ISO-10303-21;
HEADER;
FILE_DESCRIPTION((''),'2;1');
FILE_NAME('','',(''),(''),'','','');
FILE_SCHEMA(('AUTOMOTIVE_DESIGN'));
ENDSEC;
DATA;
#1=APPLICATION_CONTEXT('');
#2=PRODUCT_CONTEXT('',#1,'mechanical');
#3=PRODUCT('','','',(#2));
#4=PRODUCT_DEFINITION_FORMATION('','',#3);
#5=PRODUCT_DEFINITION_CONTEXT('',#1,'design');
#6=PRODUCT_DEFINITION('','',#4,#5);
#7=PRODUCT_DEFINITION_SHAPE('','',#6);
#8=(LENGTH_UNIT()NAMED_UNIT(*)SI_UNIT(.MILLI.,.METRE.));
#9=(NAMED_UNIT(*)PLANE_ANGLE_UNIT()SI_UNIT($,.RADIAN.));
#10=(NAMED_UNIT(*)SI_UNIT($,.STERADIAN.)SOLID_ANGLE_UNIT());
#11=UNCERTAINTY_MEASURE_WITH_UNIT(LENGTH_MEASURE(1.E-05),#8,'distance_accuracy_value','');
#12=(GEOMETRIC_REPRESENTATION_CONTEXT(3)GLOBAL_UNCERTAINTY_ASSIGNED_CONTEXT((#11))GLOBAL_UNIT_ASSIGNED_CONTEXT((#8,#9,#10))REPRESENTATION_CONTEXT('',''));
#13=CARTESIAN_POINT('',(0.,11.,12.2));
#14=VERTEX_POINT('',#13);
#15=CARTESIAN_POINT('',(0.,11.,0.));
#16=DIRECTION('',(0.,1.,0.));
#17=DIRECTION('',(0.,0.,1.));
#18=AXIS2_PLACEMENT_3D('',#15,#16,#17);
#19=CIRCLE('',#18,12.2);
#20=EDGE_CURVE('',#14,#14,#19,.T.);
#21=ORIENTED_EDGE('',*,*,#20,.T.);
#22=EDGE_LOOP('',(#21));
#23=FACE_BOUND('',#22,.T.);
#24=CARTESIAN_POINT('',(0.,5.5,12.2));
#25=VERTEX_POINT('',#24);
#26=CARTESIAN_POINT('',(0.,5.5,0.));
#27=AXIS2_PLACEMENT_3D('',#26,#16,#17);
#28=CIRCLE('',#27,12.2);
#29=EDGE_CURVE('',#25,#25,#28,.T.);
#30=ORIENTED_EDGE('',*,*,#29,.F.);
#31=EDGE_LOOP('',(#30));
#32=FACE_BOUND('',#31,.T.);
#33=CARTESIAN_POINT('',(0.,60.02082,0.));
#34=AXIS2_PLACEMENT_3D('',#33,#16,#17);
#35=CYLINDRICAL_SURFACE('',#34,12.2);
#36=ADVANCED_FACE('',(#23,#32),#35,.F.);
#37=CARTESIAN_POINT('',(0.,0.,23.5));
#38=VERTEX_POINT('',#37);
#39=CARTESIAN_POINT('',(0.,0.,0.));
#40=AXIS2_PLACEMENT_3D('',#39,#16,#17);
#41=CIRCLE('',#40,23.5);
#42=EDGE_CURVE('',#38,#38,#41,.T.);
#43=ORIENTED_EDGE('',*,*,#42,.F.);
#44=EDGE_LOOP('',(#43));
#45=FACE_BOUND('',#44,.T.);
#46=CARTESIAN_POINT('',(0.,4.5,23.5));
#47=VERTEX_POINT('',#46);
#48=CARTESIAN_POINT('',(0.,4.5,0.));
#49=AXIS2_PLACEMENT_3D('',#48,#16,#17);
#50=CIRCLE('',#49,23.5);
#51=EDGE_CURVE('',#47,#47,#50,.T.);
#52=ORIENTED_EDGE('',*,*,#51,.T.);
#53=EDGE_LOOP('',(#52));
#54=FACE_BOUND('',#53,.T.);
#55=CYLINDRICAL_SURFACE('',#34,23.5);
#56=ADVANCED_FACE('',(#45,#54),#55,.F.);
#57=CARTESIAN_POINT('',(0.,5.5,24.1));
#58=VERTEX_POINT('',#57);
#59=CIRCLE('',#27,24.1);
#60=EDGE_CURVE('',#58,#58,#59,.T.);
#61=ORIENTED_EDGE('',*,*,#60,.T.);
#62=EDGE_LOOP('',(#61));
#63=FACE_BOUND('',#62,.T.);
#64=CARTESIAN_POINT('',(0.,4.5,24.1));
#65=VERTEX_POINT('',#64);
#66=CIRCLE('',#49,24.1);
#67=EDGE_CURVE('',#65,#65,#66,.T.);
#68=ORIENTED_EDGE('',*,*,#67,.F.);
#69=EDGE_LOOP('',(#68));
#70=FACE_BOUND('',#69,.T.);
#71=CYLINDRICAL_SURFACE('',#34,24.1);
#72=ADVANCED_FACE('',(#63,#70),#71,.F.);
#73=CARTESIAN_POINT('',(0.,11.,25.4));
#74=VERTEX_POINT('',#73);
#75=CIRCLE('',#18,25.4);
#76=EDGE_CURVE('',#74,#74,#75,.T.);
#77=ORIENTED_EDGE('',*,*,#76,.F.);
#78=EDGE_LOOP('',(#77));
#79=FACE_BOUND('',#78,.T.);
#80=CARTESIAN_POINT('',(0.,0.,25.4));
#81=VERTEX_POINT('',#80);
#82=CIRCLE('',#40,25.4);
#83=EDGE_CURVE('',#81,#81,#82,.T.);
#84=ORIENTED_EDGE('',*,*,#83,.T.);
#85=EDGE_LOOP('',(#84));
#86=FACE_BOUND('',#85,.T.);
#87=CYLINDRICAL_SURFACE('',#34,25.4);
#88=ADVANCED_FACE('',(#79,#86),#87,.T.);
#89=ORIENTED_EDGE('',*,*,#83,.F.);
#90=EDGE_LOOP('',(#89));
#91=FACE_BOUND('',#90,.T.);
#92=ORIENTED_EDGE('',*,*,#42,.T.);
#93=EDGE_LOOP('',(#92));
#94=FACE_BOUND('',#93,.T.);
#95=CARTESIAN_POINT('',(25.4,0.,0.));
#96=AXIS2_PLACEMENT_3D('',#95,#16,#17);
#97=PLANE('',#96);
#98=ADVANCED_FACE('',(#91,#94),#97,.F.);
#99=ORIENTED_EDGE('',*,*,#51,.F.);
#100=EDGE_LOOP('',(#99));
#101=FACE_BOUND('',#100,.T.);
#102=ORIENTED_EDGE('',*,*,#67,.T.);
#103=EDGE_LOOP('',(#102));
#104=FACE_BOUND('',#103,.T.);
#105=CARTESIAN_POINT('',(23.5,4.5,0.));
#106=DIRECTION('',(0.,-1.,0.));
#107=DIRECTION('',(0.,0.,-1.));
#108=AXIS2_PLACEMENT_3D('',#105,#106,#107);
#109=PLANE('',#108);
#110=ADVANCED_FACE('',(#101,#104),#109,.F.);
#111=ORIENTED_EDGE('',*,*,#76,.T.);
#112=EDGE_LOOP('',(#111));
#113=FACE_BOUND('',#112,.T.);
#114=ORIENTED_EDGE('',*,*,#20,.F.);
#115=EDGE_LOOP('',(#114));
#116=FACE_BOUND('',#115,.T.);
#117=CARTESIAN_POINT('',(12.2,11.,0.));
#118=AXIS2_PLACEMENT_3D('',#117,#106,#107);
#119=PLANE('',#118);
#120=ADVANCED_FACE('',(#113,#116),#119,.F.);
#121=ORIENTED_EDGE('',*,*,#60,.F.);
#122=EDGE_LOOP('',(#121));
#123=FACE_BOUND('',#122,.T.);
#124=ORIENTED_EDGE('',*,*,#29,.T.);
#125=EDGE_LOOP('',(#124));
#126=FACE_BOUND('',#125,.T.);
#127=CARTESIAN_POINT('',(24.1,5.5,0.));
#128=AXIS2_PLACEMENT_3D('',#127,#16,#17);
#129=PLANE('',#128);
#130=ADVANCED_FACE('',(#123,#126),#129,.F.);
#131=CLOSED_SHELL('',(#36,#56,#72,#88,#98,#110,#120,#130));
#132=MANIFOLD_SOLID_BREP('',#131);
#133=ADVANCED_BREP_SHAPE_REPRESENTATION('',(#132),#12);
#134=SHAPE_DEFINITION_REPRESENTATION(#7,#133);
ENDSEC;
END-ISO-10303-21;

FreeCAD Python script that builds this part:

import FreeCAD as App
import Part
import Sketcher
from FreeCAD import Vector


def add_polygon(sketch, points):
    """Adds a closed chain of lines whose ends are joined by coincident constraints."""
    first, n = sketch.GeometryCount, len(points)
    for a, b in zip(points, points[1:] + points[:1]):
        sketch.addGeometry(Part.LineSegment(App.Vector(*a, 0), App.Vector(*b, 0)), False)
    for i in range(n):
        sketch.addConstraint(Sketcher.Constraint("Coincident", first + i, 2, first + (i + 1) % n, 1))

doc = App.newDocument("Part")
body = doc.addObject("PartDesign::Body", "Body")

# Sketch on XY plane
sketch1 = body.newObject("Sketcher::SketchObject", "Sketch")
sketch1.AttachmentSupport = (doc.getObject("XY_Plane"), [""])
sketch1.MapMode = "FlatFace"
add_polygon(sketch1, [(23.5, 4.5), (23.5, 0), (25.4, 0), (25.4, 11), (12.2, 11), (12.2, 5.5), (24.1, 5.5), (24.1, 4.5)])  # lines 0-7
sketch1.addConstraint([
    Sketcher.Constraint("Vertical", 0),
    Sketcher.Constraint("Horizontal", 1),
    Sketcher.Constraint("Vertical", 2),
    Sketcher.Constraint("Horizontal", 3),
    Sketcher.Constraint("Vertical", 4),
    Sketcher.Constraint("Horizontal", 5),
    Sketcher.Constraint("Vertical", 6),
    Sketcher.Constraint("Horizontal", 7),
    Sketcher.Constraint("PointOnObject", 0, 2, -1),
    Sketcher.Constraint("DistanceY", 2, 1, 2, 2, 11.0),
    Sketcher.Constraint("DistanceY", 6, 2, 6, 1, 1.0),
    Sketcher.Constraint("DistanceX", 1, 1, 1, 2, 1.9),
    Sketcher.Constraint("DistanceX", 3, 2, 3, 1, 13.2),
    Sketcher.Constraint("DistanceX", 5, 1, 5, 2, 11.9),
    Sketcher.Constraint("DistanceY", 0, 2, 0, 1, 4.5),
    Sketcher.Constraint("DistanceX", -1, 1, 0, 2, 23.5),
])
revolution = body.newObject("PartDesign::Revolution", "Revolution")
revolution.Profile = sketch1
revolution.ReferenceAxis = (sketch1, ["V_Axis"])
revolution.Angle = 360

doc.recompute()
